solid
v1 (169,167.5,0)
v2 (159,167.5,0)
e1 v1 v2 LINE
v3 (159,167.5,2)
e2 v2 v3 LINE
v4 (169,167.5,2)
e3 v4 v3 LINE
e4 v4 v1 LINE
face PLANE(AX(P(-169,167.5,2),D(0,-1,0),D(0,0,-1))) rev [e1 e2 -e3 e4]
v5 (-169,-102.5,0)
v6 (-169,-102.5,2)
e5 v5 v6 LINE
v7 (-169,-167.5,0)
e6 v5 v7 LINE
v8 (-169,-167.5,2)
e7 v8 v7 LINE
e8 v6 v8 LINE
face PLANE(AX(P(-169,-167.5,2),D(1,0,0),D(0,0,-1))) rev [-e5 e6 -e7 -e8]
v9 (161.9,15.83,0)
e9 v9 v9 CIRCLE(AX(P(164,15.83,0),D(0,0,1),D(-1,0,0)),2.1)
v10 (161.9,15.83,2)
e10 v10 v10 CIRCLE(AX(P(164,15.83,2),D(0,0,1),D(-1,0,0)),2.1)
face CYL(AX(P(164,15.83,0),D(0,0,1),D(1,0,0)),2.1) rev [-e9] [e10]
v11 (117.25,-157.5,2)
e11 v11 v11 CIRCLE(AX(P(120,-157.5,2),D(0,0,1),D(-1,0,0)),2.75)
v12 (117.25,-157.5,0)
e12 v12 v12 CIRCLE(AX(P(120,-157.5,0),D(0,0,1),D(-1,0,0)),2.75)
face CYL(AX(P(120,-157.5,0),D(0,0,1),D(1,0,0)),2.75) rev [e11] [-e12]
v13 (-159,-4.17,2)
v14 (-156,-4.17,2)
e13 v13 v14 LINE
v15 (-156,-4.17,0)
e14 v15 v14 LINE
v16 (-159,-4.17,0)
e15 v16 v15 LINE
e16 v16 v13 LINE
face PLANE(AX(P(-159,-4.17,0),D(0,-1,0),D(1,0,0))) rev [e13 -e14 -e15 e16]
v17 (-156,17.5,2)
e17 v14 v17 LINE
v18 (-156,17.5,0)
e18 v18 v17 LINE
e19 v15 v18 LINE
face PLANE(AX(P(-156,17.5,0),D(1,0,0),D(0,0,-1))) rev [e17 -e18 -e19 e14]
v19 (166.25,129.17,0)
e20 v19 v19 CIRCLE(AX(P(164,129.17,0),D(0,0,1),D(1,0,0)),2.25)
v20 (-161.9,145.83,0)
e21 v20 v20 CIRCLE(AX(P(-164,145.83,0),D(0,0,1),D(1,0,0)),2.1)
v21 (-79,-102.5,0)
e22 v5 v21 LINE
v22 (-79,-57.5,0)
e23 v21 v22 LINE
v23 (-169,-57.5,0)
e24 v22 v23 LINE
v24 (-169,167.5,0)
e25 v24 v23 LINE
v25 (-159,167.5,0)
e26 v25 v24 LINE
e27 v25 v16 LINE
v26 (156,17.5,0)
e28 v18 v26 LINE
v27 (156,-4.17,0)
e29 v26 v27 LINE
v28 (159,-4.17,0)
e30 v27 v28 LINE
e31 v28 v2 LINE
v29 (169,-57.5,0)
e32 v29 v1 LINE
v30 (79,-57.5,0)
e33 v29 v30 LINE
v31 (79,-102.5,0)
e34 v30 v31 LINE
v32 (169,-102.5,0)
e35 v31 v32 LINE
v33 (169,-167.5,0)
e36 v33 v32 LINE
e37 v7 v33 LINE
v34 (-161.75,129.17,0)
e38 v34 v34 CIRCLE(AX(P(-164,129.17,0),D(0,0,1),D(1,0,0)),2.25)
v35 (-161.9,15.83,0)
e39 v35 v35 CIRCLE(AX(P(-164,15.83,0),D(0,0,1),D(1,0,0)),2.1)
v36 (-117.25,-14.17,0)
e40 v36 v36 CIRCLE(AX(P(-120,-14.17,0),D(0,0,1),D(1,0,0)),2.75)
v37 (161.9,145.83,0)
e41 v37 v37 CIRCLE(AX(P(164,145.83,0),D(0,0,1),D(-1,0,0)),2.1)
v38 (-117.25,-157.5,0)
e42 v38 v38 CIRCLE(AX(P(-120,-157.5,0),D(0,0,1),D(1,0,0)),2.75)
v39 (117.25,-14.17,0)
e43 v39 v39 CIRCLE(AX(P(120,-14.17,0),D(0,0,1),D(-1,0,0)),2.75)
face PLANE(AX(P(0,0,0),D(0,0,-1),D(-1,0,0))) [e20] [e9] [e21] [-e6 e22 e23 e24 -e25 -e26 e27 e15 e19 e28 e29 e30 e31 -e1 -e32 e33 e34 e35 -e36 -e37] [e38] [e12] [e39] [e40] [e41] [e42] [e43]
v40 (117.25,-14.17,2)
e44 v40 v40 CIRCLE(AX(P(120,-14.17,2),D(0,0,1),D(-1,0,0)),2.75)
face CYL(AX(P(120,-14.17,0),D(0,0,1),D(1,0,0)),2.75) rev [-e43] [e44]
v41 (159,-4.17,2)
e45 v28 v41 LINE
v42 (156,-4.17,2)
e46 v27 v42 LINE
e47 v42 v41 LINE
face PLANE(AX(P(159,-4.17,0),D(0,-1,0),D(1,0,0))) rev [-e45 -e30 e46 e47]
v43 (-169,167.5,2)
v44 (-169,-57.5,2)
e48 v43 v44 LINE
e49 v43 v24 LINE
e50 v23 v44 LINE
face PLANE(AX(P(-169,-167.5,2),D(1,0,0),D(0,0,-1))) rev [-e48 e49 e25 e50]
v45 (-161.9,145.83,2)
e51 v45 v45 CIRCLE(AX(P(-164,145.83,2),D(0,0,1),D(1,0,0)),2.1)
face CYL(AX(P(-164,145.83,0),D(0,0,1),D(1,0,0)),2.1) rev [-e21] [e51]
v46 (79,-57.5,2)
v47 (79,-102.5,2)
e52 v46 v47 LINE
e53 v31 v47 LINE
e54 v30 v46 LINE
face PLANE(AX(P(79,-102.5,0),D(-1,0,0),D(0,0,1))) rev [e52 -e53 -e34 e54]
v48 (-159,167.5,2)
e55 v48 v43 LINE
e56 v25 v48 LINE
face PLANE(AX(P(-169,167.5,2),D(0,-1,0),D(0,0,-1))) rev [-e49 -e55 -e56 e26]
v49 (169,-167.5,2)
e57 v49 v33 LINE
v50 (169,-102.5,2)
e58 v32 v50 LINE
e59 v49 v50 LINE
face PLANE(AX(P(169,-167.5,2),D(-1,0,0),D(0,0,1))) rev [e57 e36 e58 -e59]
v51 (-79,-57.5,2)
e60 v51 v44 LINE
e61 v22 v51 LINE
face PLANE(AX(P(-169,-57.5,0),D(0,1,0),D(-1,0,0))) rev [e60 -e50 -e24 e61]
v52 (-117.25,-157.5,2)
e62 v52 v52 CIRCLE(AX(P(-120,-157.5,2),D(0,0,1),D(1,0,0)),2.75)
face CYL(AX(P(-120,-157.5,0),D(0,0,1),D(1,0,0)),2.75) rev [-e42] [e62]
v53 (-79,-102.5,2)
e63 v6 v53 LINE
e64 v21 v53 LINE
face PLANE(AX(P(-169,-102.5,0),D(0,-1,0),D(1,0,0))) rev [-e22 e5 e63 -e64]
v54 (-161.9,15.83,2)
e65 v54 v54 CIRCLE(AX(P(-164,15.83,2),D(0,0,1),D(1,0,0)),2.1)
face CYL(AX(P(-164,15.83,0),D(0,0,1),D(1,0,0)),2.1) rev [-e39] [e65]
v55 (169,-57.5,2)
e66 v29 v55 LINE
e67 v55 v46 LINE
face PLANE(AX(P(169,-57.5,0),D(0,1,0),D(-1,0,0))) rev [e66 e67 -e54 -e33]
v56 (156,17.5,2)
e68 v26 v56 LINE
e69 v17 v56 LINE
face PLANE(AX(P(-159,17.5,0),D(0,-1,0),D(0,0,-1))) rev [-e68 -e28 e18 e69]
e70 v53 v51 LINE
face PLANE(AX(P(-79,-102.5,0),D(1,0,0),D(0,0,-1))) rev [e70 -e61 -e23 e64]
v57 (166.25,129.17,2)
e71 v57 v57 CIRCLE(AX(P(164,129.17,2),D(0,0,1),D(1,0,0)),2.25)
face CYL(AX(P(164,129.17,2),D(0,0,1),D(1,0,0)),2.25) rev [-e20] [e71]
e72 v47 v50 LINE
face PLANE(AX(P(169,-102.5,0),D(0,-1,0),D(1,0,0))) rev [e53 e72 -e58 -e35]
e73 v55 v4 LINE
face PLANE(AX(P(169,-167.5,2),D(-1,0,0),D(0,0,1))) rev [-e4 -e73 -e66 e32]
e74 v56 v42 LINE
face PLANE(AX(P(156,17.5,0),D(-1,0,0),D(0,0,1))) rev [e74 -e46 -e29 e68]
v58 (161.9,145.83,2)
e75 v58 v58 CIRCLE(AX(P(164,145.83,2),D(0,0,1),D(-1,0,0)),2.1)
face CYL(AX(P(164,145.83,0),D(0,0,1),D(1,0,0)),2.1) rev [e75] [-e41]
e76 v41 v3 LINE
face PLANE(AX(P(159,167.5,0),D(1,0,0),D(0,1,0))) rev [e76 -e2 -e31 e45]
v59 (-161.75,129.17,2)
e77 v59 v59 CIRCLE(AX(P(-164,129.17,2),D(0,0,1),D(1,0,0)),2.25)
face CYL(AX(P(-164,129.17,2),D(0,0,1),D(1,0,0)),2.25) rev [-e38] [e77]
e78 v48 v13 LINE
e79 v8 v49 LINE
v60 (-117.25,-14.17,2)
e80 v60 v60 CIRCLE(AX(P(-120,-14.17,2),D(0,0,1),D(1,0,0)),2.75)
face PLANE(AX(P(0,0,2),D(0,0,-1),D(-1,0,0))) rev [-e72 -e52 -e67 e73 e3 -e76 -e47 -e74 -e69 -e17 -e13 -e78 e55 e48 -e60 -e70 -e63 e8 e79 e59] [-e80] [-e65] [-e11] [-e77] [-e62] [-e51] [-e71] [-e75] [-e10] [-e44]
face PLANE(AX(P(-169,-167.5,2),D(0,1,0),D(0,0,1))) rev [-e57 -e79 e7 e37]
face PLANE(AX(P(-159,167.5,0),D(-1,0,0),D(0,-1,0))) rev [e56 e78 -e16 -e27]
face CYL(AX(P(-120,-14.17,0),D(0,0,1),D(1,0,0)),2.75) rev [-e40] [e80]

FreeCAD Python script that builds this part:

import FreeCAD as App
import Part
import Sketcher
from FreeCAD import Vector


def add_polygon(sketch, points):
    """Adds a closed chain of lines whose ends are joined by coincident constraints."""
    first, n = sketch.GeometryCount, len(points)
    for a, b in zip(points, points[1:] + points[:1]):
        sketch.addGeometry(Part.LineSegment(App.Vector(*a, 0), App.Vector(*b, 0)), False)
    for i in range(n):
        sketch.addConstraint(Sketcher.Constraint("Coincident", first + i, 2, first + (i + 1) % n, 1))

doc = App.newDocument("Part")
params = doc.addObject("Spreadsheet::Sheet", "Params")
for row, (alias, value) in enumerate([
    ("sketch1_width", "338 mm"),
    ("sketch1_height", "335 mm"),
    ("pad1_length", "2 mm"),
    ("sketch2_width", "318 mm"),
    ("sketch2_width2", "90 mm"),
    ("sketch2_height", "150 mm"),
    ("sketch2_height2", "45 mm"),
    ("sketch3_diameter", "4.5 mm"),
    ("hole_diameter", "4.5 mm"),
    ("sketch4_width", "3 mm"),
    ("sketch4_height", "21.67 mm"),
    ("sketch5_diameter", "4.2 mm"),
    ("sketch6_diameter", "5.5 mm"),
], start=1):
    params.set(f"A{row}", alias)
    params.set(f"B{row}", "=" + value)
    params.setAlias(f"B{row}", alias)

body = doc.addObject("PartDesign::Body", "Body")

sketch1 = body.newObject("Sketcher::SketchObject", "Sketch")
sketch1.AttachmentSupport = (doc.getObject("XY_Plane"), [""])
sketch1.MapMode = "FlatFace"
add_polygon(sketch1, [(-169, 168), (-169, -168), (169, -168), (169, 168)])
sketch1.addConstraint([
    Sketcher.Constraint("Vertical", 0),
    Sketcher.Constraint("Horizontal", 1),
    Sketcher.Constraint("Vertical", 2),
    Sketcher.Constraint("Horizontal", 3),
    Sketcher.Constraint("Symmetric", 0, 2, 2, 2, -1, 1),
    Sketcher.Constraint("DistanceX", 1, 1, 1, 2, 338.0),
    Sketcher.Constraint("DistanceY", 0, 2, 0, 1, 335.0),
])
sketch1.setExpression("Constraints[9]", "Params.sketch1_width")
sketch1.setExpression("Constraints[10]", "Params.sketch1_height")
pad1 = body.newObject("PartDesign::Pad", "Pad")
pad1.Profile = sketch1
pad1.setExpression("Length", "Params.pad1_length")

sketch2 = body.newObject("Sketcher::SketchObject", "Sketch001")
sketch2.AttachmentSupport = (doc.getObject("XY_Plane"), [""])
sketch2.MapMode = "FlatFace"
sketch2.AttachmentOffset = App.Placement(Vector(0, 0, 2), App.Rotation())
add_polygon(sketch2, [(-159, 168), (-159, 18), (159, 18), (159, 168)])
add_polygon(sketch2, [(79, -58), (79, -102), (169, -102), (169, -58)])
add_polygon(sketch2, [(-169, -58), (-169, -102), (-79, -102), (-79, -58)])
sketch2.addConstraint([
    Sketcher.Constraint("Vertical", 0),
    Sketcher.Constraint("Horizontal", 1),
    Sketcher.Constraint("Vertical", 2),
    Sketcher.Constraint("Horizontal", 3),
    Sketcher.Constraint("Vertical", 4),
    Sketcher.Constraint("Horizontal", 5),
    Sketcher.Constraint("Vertical", 6),
    Sketcher.Constraint("Horizontal", 7),
    Sketcher.Constraint("Vertical", 8),
    Sketcher.Constraint("Horizontal", 9),
    Sketcher.Constraint("Vertical", 10),
    Sketcher.Constraint("Horizontal", 11),
    Sketcher.Constraint("Symmetric", 5, 2, 8, 2, -2),
    Sketcher.Constraint("Symmetric", 7, 2, 10, 2, -2),
    Sketcher.Constraint("DistanceX", 1, 1, 1, 2, 318.0),
    Sketcher.Constraint("DistanceX", 5, 1, 5, 2, 90.0),
    Sketcher.Constraint("DistanceY", 0, 2, 0, 1, 150.0),
    Sketcher.Constraint("DistanceY", 4, 2, 4, 1, 45.0),
    Sketcher.Constraint("DistanceX", 0, 2, -1, 1, 159.0),
    Sketcher.Constraint("DistanceX", -1, 1, 4, 2, 79.0),
    Sketcher.Constraint("DistanceY", 4, 2, 1, 2, 120.0),
    Sketcher.Constraint("DistanceY", -1, 1, 0, 2, 17.5),
])
sketch2.setExpression("Constraints[26]", "Params.sketch2_width")
sketch2.setExpression("Constraints[27]", "Params.sketch2_width2")
sketch2.setExpression("Constraints[28]", "Params.sketch2_height")
sketch2.setExpression("Constraints[29]", "Params.sketch2_height2")
pocket1 = body.newObject("PartDesign::Pocket", "Pocket")
pocket1.Profile = sketch2
pocket1.Type = "ThroughAll"

sketch3 = body.newObject("Sketcher::SketchObject", "Sketch002")
sketch3.AttachmentSupport = (doc.getObject("XY_Plane"), [""])
sketch3.MapMode = "FlatFace"
sketch3.AttachmentOffset = App.Placement(Vector(0, 0, 2), App.Rotation())
sketch3.addGeometry([
    Part.Circle(Vector(164, 129.2, 0), Vector(0, 0, 1), 2.2),
    Part.Circle(Vector(-164, 129.2, 0), Vector(0, 0, 1), 2.2),
], False)
sketch3.addConstraint([
    Sketcher.Constraint("Equal", 0, 1),
    Sketcher.Constraint("Symmetric", 0, 3, 1, 3, -2),
    Sketcher.Constraint("Diameter", 0, 4.5),
    Sketcher.Constraint("DistanceX", -1, 1, 0, 3, 164.0),
    Sketcher.Constraint("DistanceY", -1, 1, 0, 3, 129.17),
])
sketch3.setExpression("Constraints[2]", "Params.sketch3_diameter")
doc.recompute()
hole = body.newObject("PartDesign::Hole", "Hole")
hole.Profile = sketch3
hole.ThreadType = "None"
hole.setExpression("Diameter", "Params.hole_diameter")
hole.DepthType = "ThroughAll"

sketch4 = body.newObject("Sketcher::SketchObject", "Sketch003")
sketch4.AttachmentSupport = (doc.getObject("XY_Plane"), [""])
sketch4.MapMode = "FlatFace"
sketch4.AttachmentOffset = App.Placement(Vector(0, 0, 2), App.Rotation())
add_polygon(sketch4, [(156, 17.5), (156, -4.2), (159, -4.2), (159, 17.5)])
add_polygon(sketch4, [(-159, 17.5), (-159, -4.2), (-156, -4.2), (-156, 17.5)])
sketch4.addConstraint([
    Sketcher.Constraint("Vertical", 0),
    Sketcher.Constraint("Horizontal", 1),
    Sketcher.Constraint("Vertical", 2),
    Sketcher.Constraint("Horizontal", 3),
    Sketcher.Constraint("Vertical", 4),
    Sketcher.Constraint("Horizontal", 5),
    Sketcher.Constraint("Vertical", 6),
    Sketcher.Constraint("Horizontal", 7),
    Sketcher.Constraint("Symmetric", 1, 2, 4, 2, -2),
    Sketcher.Constraint("Symmetric", 3, 2, 6, 2, -2),
    Sketcher.Constraint("DistanceX", 1, 1, 1, 2, 3.0),
    Sketcher.Constraint("DistanceX", -1, 1, 0, 2, 156.0),
    Sketcher.Constraint("DistanceY", 0, 2, 0, 1, 21.67),
    Sketcher.Constraint("DistanceY", -1, 1, 2, 2, 17.5),
])
sketch4.setExpression("Constraints[18]", "Params.sketch4_width")
sketch4.setExpression("Constraints[20]", "Params.sketch4_height")
pocket2 = body.newObject("PartDesign::Pocket", "Pocket001")
pocket2.Profile = sketch4
pocket2.Type = "ThroughAll"

sketch5 = body.newObject("Sketcher::SketchObject", "Sketch004")
sketch5.AttachmentSupport = (doc.getObject("XY_Plane"), [""])
sketch5.MapMode = "FlatFace"
sketch5.AttachmentOffset = App.Placement(Vector(0, 0, 2), App.Rotation())
sketch5.addGeometry([
    Part.Circle(Vector(-164, 15.8, 0), Vector(0, 0, 1), 2.1),
    Part.Circle(Vector(-164, 145.8, 0), Vector(0, 0, 1), 2.1),
    Part.Circle(Vector(164, 15.8, 0), Vector(0, 0, 1), 2.1),
    Part.Circle(Vector(164, 145.8, 0), Vector(0, 0, 1), 2.1),
], False)
sketch5.addConstraint([
    Sketcher.Constraint("Equal", 0, 1),
    Sketcher.Constraint("Equal", 1, 2),
    Sketcher.Constraint("Equal", 2, 3),
    Sketcher.Constraint("Symmetric", 0, 3, 2, 3, -2),
    Sketcher.Constraint("Symmetric", 1, 3, 3, 3, -2),
    Sketcher.Constraint("Vertical", 0, 3, 1, 3),
    Sketcher.Constraint("Diameter", 0, 4.2),
    Sketcher.Constraint("DistanceX", 0, 3, -1, 1, 164.0),
    Sketcher.Constraint("DistanceY", 0, 3, 1, 3, 130.0),
    Sketcher.Constraint("DistanceY", -1, 1, 0, 3, 15.83),
])
sketch5.setExpression("Constraints[6]", "Params.sketch5_diameter")
pocket3 = body.newObject("PartDesign::Pocket", "Pocket002")
pocket3.Profile = sketch5
pocket3.Type = "ThroughAll"

sketch6 = body.newObject("Sketcher::SketchObject", "Sketch005")
sketch6.AttachmentSupport = (doc.getObject("XY_Plane"), [""])
sketch6.MapMode = "FlatFace"
sketch6.AttachmentOffset = App.Placement(Vector(0, 0, 2), App.Rotation())
sketch6.addGeometry([
    Part.Circle(Vector(-120, -157.5, 0), Vector(0, 0, 1), 2.8),
    Part.Circle(Vector(-120, -14.2, 0), Vector(0, 0, 1), 2.8),
    Part.Circle(Vector(120, -14.2, 0), Vector(0, 0, 1), 2.8),
    Part.Circle(Vector(120, -157.5, 0), Vector(0, 0, 1), 2.8),
], False)
sketch6.addConstraint([
    Sketcher.Constraint("Equal", 0, 1),
    Sketcher.Constraint("Equal", 1, 2),
    Sketcher.Constraint("Equal", 2, 3),
    Sketcher.Constraint("Symmetric", 1, 3, 2, 3, -2),
    Sketcher.Constraint("Symmetric", 0, 3, 3, 3, -2),
    Sketcher.Constraint("Vertical", 0, 3, 1, 3),
    Sketcher.Constraint("Diameter", 0, 5.5),
    Sketcher.Constraint("DistanceX", 0, 3, -1, 1, 120.0),
    Sketcher.Constraint("DistanceY", 0, 3, -1, 1, 157.5),
    Sketcher.Constraint("DistanceY", 1, 3, -1, 1, 14.17),
])
sketch6.setExpression("Constraints[6]", "Params.sketch6_diameter")
pocket4 = body.newObject("PartDesign::Pocket", "Pocket003")
pocket4.Profile = sketch6
pocket4.Type = "ThroughAll"

doc.recompute()
